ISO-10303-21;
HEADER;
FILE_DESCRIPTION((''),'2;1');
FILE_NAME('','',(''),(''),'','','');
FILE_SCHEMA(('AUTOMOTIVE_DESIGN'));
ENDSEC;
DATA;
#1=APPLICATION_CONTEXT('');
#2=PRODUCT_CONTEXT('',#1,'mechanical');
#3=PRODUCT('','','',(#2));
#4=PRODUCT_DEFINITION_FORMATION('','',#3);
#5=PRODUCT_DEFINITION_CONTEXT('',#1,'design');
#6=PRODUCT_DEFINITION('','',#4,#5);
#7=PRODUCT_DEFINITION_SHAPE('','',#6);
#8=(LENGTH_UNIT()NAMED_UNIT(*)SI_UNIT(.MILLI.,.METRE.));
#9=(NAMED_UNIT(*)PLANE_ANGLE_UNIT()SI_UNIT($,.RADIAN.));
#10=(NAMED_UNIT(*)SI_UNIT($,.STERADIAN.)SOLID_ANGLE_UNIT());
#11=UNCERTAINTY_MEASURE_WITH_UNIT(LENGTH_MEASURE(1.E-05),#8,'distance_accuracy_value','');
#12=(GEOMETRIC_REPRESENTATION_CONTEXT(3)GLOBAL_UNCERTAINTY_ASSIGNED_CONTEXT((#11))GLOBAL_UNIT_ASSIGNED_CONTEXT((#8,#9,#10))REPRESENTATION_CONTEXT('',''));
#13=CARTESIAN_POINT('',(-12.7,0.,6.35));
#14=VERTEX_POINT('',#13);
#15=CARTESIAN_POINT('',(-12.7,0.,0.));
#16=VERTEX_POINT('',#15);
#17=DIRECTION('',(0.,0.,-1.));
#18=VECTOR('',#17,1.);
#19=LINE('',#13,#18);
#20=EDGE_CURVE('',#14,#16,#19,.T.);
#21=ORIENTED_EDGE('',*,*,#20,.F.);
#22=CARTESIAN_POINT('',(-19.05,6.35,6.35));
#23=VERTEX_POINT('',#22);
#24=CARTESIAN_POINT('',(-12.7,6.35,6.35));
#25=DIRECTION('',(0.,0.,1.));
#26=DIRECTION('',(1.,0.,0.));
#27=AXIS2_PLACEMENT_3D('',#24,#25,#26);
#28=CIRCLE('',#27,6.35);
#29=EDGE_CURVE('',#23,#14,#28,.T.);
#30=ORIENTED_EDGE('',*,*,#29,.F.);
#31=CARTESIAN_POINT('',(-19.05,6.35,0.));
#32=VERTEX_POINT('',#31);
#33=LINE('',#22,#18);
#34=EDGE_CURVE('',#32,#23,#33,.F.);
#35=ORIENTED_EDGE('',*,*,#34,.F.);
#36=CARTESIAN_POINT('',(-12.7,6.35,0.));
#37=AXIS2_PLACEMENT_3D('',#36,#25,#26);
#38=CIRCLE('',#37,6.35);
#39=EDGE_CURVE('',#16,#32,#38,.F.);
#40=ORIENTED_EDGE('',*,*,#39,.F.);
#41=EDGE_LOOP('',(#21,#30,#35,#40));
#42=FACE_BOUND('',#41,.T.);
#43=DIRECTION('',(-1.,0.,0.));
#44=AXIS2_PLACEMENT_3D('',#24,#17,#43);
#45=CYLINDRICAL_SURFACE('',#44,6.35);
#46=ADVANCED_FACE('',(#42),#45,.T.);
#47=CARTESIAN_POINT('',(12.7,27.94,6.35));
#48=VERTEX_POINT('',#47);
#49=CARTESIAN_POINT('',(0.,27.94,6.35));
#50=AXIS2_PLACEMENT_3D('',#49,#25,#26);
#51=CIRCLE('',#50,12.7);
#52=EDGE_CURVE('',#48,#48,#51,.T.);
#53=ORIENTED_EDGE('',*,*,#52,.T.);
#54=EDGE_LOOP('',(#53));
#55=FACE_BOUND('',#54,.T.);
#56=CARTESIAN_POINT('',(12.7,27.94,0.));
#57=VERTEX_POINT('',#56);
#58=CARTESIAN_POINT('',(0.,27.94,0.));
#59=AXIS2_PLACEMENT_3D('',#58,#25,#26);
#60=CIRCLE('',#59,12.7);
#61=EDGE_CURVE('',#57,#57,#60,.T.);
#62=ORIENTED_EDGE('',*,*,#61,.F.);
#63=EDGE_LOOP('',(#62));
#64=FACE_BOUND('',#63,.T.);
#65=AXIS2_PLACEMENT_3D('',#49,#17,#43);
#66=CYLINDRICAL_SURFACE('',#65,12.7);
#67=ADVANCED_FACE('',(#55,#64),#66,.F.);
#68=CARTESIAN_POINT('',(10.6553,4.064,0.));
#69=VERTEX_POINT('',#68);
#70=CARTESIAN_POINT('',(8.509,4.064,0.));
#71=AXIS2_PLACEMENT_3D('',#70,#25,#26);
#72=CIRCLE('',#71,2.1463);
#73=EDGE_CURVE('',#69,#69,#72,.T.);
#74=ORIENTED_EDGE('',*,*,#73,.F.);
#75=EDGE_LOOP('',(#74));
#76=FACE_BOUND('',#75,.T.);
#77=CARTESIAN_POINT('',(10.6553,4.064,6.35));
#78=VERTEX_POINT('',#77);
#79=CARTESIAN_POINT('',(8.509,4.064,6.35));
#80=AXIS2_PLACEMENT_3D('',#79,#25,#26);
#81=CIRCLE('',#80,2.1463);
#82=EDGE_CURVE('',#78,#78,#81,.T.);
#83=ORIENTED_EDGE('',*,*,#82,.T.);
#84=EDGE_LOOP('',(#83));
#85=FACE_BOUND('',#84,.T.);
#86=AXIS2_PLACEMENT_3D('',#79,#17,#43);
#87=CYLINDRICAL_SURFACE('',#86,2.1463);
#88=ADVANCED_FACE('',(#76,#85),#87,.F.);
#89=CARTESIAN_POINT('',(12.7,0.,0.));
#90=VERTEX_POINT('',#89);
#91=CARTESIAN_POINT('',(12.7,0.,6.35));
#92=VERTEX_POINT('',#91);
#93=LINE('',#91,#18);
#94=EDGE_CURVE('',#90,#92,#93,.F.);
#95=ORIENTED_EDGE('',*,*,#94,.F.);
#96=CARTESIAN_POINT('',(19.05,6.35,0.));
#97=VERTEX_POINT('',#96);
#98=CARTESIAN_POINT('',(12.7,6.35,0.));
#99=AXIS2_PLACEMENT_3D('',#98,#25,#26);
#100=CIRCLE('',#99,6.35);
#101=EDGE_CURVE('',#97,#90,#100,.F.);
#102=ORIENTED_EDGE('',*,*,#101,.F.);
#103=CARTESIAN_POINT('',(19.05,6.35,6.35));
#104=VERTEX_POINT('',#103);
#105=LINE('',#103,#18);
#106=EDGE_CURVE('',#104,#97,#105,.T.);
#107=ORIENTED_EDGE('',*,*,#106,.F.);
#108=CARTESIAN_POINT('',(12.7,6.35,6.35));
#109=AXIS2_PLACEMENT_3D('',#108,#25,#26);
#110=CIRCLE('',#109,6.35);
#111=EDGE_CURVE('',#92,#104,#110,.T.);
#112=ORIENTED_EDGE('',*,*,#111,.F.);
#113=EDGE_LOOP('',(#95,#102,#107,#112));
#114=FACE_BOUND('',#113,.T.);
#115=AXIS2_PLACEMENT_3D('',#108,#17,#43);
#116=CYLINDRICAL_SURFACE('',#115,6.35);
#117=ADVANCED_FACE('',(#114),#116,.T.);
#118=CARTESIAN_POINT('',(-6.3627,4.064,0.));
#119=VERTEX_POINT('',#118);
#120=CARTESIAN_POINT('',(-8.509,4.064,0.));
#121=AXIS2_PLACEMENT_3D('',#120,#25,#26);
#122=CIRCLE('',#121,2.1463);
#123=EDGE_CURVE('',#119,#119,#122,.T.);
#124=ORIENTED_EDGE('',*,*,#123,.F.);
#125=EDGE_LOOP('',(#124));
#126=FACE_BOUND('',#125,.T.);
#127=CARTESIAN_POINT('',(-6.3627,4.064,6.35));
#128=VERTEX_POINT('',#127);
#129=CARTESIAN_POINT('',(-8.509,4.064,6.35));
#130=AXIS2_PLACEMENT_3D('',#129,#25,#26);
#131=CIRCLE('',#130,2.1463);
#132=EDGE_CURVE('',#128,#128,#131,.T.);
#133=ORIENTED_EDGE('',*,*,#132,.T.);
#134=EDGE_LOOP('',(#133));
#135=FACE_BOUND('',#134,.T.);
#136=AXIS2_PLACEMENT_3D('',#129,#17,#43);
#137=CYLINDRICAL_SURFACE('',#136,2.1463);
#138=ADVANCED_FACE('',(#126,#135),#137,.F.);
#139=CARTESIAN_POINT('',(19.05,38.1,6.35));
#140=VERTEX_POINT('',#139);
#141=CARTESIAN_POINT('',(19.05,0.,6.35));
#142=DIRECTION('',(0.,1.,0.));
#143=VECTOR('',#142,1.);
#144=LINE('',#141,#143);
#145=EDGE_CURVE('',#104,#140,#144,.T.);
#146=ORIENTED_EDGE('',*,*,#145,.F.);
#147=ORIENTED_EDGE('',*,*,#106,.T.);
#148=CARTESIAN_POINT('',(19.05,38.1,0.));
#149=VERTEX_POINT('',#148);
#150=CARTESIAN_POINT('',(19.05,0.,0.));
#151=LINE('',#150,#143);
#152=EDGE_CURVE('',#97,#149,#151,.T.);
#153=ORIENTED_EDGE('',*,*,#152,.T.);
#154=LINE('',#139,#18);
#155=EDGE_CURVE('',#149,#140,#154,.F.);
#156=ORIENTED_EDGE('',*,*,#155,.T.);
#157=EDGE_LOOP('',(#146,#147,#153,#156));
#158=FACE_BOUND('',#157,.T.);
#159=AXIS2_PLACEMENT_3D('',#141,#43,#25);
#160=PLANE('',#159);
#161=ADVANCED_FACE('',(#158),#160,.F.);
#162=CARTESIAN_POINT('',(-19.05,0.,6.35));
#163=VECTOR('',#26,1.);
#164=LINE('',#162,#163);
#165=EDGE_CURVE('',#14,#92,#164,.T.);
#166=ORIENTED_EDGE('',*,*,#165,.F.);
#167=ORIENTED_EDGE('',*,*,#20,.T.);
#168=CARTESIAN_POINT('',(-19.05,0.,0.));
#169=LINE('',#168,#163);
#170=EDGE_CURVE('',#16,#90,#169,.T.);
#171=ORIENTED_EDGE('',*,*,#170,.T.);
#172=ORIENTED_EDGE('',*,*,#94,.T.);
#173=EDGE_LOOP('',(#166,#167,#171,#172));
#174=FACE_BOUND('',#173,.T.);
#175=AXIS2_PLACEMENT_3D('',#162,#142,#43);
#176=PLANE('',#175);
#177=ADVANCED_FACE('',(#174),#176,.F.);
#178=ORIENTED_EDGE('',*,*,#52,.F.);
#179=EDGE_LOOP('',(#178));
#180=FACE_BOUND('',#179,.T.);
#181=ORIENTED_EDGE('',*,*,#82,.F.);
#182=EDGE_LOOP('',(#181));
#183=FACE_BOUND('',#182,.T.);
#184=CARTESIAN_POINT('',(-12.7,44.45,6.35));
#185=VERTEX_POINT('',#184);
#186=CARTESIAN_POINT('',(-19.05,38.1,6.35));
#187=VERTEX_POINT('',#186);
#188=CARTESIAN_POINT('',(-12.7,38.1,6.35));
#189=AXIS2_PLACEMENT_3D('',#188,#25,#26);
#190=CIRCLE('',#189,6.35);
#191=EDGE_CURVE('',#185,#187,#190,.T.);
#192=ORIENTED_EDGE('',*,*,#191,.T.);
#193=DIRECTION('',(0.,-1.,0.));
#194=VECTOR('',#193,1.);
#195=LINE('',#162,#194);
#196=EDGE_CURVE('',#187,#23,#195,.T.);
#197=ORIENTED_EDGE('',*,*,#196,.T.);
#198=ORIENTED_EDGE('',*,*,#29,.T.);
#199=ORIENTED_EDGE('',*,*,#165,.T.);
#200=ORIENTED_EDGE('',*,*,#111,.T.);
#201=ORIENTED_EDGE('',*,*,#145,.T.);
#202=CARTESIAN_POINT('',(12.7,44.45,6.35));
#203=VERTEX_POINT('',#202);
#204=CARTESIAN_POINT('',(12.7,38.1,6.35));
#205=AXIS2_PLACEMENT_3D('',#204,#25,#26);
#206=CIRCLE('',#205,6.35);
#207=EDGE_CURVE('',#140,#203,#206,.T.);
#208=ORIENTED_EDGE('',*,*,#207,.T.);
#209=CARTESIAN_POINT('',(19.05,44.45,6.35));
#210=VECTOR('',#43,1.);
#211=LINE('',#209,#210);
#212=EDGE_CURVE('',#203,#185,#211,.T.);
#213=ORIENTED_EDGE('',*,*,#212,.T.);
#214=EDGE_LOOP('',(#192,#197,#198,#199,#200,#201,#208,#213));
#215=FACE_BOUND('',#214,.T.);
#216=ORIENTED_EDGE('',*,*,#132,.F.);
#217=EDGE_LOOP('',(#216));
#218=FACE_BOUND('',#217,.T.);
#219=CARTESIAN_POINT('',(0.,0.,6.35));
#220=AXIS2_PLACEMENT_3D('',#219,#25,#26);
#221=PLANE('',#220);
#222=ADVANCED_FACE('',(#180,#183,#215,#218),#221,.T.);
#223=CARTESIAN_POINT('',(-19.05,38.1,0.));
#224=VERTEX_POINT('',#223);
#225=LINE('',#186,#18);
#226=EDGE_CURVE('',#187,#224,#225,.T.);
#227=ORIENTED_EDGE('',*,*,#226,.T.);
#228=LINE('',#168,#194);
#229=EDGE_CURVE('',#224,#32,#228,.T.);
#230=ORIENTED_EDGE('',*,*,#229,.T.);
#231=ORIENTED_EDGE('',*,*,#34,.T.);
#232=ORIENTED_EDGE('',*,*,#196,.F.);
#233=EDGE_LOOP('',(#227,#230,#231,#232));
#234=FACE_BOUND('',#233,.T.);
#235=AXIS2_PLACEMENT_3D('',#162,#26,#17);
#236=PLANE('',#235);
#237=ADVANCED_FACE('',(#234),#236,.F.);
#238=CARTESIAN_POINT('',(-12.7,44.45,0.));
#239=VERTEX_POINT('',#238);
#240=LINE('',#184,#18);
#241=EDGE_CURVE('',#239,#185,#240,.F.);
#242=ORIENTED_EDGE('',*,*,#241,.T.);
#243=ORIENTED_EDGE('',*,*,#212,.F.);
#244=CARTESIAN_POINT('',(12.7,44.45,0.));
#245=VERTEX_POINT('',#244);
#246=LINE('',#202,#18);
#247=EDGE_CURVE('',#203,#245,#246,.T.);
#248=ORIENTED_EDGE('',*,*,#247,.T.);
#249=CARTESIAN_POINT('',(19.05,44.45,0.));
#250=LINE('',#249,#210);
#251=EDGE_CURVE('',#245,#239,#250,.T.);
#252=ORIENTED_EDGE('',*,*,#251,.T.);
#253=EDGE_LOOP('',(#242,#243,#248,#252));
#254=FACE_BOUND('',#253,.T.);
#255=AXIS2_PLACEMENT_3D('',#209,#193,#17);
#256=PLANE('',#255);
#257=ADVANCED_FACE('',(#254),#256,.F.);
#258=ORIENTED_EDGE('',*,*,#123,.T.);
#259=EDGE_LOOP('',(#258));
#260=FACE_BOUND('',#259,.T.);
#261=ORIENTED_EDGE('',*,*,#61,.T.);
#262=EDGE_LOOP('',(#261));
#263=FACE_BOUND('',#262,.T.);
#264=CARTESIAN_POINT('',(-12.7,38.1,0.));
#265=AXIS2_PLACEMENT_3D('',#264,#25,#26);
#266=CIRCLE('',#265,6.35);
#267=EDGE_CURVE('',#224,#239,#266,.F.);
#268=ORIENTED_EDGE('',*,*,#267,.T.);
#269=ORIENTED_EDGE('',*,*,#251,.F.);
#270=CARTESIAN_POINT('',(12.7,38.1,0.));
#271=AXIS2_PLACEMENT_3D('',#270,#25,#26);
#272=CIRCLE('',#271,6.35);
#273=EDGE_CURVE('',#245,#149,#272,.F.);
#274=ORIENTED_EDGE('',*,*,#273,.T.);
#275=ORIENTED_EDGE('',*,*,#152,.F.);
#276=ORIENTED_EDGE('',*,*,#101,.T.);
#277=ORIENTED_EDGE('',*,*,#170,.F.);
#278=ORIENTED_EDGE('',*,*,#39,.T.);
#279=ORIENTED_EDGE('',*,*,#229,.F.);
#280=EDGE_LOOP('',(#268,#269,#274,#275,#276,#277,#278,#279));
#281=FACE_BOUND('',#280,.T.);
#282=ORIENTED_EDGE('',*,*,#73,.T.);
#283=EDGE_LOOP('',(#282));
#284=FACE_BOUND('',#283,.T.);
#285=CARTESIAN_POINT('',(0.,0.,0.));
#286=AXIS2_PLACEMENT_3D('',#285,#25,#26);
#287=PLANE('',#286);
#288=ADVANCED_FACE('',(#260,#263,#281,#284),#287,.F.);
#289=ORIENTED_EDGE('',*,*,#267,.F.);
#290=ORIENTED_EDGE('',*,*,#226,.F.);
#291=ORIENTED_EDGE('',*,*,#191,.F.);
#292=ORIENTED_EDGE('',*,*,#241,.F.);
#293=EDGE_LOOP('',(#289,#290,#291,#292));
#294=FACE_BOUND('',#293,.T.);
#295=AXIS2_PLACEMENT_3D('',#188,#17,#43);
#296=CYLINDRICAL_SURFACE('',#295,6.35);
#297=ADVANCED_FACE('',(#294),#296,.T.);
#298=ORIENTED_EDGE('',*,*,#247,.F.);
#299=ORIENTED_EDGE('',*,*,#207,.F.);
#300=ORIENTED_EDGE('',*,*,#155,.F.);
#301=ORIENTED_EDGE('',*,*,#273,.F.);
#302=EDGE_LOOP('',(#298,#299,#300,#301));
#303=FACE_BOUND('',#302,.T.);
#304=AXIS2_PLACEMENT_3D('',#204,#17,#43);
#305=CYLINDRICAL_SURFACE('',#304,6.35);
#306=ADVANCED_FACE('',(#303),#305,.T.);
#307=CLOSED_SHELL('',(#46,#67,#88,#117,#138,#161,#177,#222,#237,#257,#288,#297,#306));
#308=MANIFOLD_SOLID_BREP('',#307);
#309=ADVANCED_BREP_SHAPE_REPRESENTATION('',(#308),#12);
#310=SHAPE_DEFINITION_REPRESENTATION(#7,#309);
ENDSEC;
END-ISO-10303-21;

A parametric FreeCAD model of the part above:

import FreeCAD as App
import Part
import Sketcher
Q = App.Units.Quantity


def edges_at(feature, points):
    """Names of the edges that pass closest to the given points."""
    edges = feature.Shape.Edges
    near = lambda p: min(range(len(edges)), key=lambda i: edges[i].distToShape(Part.Vertex(*p))[0])
    return sorted({f"Edge{near(p) + 1}" for p in points})

doc = App.newDocument("Part")
body = doc.addObject("PartDesign::Body", "Body")

sketch1 = body.newObject("Sketcher::SketchObject", "Sketch")
sketch1.AttachmentSupport = (doc.getObject("XY_Plane"), [""])
sketch1.MapMode = "FlatFace"
sketch1.addGeometry([
    Part.LineSegment(App.Vector(-19.1, 44.5, 0), App.Vector(-19.1, 0, 0)),
    Part.LineSegment(App.Vector(-19.1, 0, 0), App.Vector(19.1, 0, 0)),
    Part.LineSegment(App.Vector(19.1, 0, 0), App.Vector(19.1, 44.5, 0)),
    Part.LineSegment(App.Vector(19.1, 44.5, 0), App.Vector(-19.1, 44.5, 0)),
    Part.Circle(App.Vector(-8.5, 4.1, 0), App.Vector(0, 0, 1), 2.1),
    Part.Circle(App.Vector(8.5, 4.1, 0), App.Vector(0, 0, 1), 2.1),
    Part.Circle(App.Vector(0, 27.9, 0), App.Vector(0, 0, 1), 12.7),
], False)
sketch1.addConstraint([
    Sketcher.Constraint("Coincident", 0, 2, 1, 1),
    Sketcher.Constraint("Coincident", 1, 2, 2, 1),
    Sketcher.Constraint("Coincident", 2, 2, 3, 1),
    Sketcher.Constraint("Coincident", 3, 2, 0, 1),
    Sketcher.Constraint("Vertical", 0),
    Sketcher.Constraint("Horizontal", 1),
    Sketcher.Constraint("Vertical", 2),
    Sketcher.Constraint("Horizontal", 3),
    Sketcher.Constraint("Equal", 4, 5),
    Sketcher.Constraint("Symmetric", 0, 2, 1, 2, -1, 1),
    Sketcher.Constraint("Symmetric", 4, 3, 5, 3, -2),
    Sketcher.Constraint("PointOnObject", 6, 3, -2),
    Sketcher.Constraint("Diameter", 6, Q("1 in")),
    Sketcher.Constraint("Diameter", 4, Q("0.169 in")),
    Sketcher.Constraint("DistanceX", 1, 1, 1, 2, Q("1.5 in")),
    Sketcher.Constraint("DistanceY", 0, 2, 0, 1, Q("1.75 in")),
    Sketcher.Constraint("DistanceY", -1, 1, 6, 3, Q("1.1 in")),
    Sketcher.Constraint("DistanceY", -1, 1, 4, 3, Q("0.16 in")),
    Sketcher.Constraint("DistanceX", 4, 3, 5, 3, Q("0.67 in")),
])
pad1 = body.newObject("PartDesign::Pad", "Pad")
pad1.Profile = sketch1
pad1.Length = Q("0.25 in")
doc.recompute()

fillet = body.newObject("PartDesign::Fillet", "Fillet")
fillet.Base = (pad1, edges_at(pad1, [
    (19.05, 0, 3.175),
    (-19.05, 0, 3.175),
    (-19.05, 44.45, 3.175),
    (19.05, 44.45, 3.175),
]))
fillet.Radius = Q("0.25 in")

doc.recompute()
